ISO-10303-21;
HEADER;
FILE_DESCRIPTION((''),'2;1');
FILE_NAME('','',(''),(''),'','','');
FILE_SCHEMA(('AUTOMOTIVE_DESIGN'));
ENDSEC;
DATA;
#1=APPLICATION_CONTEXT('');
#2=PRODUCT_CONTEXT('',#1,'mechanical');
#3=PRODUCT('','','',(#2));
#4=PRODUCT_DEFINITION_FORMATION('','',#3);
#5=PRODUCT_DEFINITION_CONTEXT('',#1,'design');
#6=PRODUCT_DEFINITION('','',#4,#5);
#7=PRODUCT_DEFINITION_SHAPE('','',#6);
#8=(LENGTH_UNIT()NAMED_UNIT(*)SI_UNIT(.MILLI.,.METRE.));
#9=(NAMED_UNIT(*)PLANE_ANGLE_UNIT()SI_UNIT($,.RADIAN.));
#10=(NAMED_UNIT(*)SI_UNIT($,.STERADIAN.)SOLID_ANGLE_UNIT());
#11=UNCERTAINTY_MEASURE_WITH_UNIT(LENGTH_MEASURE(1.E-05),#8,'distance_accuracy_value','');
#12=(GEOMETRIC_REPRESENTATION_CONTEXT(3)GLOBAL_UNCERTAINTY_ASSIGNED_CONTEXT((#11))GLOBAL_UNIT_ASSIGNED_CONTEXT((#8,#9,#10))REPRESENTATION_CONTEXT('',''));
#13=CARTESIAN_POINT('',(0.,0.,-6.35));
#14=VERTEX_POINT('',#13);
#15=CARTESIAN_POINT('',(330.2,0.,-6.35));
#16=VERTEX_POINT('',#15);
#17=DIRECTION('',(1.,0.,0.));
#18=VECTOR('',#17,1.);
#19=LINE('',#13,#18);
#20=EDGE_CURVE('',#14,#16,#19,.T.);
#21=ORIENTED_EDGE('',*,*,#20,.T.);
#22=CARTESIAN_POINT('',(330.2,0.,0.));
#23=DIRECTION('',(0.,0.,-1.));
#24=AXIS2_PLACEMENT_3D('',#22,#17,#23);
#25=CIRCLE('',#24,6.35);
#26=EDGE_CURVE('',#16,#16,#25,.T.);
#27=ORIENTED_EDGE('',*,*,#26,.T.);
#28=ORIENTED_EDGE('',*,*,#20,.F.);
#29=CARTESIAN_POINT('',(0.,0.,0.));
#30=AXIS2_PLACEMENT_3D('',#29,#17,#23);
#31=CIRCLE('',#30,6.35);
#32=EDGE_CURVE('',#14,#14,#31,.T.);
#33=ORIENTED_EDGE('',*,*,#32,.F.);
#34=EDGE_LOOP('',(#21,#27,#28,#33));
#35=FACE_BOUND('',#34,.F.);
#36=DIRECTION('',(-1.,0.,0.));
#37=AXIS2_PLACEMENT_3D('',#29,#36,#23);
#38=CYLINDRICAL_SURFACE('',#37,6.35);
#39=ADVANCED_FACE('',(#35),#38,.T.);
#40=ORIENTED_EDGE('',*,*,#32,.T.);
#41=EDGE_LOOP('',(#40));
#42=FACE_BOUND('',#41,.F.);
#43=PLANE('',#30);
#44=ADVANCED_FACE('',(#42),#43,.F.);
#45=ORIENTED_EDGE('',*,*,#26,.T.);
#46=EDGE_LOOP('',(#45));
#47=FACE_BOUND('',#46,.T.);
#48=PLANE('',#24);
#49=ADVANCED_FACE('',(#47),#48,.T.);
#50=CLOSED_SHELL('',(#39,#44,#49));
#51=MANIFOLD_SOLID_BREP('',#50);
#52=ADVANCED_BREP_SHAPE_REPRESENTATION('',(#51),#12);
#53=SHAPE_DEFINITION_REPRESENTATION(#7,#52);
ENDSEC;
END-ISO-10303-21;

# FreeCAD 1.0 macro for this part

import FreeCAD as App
import Part
import Sketcher
Q = App.Units.Quantity

doc = App.newDocument("Part")
params = doc.addObject("Spreadsheet::Sheet", "Params")
for row, (alias, value) in enumerate([
    ("sketch1_diameter", "0.5 in"),
    ("pad1_length", "13 in"),
], start=1):
    params.set(f"A{row}", alias)
    params.set(f"B{row}", "=" + value)
    params.setAlias(f"B{row}", alias)

body = doc.addObject("PartDesign::Body", "Body")

sketch1 = body.newObject("Sketcher::SketchObject", "Sketch")
sketch1.AttachmentSupport = (doc.getObject("YZ_Plane"), [""])
sketch1.MapMode = "FlatFace"
sketch1.addGeometry(Part.Circle(App.Vector(0, 0, 0), App.Vector(0, 0, 1), 6), False)
sketch1.addConstraint(Sketcher.Constraint("Coincident", 0, 3, -1, 1))
sketch1.addConstraint(Sketcher.Constraint("Diameter", 0, Q("0.5 in")))
sketch1.setExpression("Constraints[1]", "Params.sketch1_diameter")
pad1 = body.newObject("PartDesign::Pad", "Pad")
pad1.Profile = sketch1
pad1.setExpression("Length", "Params.pad1_length")

doc.recompute()
